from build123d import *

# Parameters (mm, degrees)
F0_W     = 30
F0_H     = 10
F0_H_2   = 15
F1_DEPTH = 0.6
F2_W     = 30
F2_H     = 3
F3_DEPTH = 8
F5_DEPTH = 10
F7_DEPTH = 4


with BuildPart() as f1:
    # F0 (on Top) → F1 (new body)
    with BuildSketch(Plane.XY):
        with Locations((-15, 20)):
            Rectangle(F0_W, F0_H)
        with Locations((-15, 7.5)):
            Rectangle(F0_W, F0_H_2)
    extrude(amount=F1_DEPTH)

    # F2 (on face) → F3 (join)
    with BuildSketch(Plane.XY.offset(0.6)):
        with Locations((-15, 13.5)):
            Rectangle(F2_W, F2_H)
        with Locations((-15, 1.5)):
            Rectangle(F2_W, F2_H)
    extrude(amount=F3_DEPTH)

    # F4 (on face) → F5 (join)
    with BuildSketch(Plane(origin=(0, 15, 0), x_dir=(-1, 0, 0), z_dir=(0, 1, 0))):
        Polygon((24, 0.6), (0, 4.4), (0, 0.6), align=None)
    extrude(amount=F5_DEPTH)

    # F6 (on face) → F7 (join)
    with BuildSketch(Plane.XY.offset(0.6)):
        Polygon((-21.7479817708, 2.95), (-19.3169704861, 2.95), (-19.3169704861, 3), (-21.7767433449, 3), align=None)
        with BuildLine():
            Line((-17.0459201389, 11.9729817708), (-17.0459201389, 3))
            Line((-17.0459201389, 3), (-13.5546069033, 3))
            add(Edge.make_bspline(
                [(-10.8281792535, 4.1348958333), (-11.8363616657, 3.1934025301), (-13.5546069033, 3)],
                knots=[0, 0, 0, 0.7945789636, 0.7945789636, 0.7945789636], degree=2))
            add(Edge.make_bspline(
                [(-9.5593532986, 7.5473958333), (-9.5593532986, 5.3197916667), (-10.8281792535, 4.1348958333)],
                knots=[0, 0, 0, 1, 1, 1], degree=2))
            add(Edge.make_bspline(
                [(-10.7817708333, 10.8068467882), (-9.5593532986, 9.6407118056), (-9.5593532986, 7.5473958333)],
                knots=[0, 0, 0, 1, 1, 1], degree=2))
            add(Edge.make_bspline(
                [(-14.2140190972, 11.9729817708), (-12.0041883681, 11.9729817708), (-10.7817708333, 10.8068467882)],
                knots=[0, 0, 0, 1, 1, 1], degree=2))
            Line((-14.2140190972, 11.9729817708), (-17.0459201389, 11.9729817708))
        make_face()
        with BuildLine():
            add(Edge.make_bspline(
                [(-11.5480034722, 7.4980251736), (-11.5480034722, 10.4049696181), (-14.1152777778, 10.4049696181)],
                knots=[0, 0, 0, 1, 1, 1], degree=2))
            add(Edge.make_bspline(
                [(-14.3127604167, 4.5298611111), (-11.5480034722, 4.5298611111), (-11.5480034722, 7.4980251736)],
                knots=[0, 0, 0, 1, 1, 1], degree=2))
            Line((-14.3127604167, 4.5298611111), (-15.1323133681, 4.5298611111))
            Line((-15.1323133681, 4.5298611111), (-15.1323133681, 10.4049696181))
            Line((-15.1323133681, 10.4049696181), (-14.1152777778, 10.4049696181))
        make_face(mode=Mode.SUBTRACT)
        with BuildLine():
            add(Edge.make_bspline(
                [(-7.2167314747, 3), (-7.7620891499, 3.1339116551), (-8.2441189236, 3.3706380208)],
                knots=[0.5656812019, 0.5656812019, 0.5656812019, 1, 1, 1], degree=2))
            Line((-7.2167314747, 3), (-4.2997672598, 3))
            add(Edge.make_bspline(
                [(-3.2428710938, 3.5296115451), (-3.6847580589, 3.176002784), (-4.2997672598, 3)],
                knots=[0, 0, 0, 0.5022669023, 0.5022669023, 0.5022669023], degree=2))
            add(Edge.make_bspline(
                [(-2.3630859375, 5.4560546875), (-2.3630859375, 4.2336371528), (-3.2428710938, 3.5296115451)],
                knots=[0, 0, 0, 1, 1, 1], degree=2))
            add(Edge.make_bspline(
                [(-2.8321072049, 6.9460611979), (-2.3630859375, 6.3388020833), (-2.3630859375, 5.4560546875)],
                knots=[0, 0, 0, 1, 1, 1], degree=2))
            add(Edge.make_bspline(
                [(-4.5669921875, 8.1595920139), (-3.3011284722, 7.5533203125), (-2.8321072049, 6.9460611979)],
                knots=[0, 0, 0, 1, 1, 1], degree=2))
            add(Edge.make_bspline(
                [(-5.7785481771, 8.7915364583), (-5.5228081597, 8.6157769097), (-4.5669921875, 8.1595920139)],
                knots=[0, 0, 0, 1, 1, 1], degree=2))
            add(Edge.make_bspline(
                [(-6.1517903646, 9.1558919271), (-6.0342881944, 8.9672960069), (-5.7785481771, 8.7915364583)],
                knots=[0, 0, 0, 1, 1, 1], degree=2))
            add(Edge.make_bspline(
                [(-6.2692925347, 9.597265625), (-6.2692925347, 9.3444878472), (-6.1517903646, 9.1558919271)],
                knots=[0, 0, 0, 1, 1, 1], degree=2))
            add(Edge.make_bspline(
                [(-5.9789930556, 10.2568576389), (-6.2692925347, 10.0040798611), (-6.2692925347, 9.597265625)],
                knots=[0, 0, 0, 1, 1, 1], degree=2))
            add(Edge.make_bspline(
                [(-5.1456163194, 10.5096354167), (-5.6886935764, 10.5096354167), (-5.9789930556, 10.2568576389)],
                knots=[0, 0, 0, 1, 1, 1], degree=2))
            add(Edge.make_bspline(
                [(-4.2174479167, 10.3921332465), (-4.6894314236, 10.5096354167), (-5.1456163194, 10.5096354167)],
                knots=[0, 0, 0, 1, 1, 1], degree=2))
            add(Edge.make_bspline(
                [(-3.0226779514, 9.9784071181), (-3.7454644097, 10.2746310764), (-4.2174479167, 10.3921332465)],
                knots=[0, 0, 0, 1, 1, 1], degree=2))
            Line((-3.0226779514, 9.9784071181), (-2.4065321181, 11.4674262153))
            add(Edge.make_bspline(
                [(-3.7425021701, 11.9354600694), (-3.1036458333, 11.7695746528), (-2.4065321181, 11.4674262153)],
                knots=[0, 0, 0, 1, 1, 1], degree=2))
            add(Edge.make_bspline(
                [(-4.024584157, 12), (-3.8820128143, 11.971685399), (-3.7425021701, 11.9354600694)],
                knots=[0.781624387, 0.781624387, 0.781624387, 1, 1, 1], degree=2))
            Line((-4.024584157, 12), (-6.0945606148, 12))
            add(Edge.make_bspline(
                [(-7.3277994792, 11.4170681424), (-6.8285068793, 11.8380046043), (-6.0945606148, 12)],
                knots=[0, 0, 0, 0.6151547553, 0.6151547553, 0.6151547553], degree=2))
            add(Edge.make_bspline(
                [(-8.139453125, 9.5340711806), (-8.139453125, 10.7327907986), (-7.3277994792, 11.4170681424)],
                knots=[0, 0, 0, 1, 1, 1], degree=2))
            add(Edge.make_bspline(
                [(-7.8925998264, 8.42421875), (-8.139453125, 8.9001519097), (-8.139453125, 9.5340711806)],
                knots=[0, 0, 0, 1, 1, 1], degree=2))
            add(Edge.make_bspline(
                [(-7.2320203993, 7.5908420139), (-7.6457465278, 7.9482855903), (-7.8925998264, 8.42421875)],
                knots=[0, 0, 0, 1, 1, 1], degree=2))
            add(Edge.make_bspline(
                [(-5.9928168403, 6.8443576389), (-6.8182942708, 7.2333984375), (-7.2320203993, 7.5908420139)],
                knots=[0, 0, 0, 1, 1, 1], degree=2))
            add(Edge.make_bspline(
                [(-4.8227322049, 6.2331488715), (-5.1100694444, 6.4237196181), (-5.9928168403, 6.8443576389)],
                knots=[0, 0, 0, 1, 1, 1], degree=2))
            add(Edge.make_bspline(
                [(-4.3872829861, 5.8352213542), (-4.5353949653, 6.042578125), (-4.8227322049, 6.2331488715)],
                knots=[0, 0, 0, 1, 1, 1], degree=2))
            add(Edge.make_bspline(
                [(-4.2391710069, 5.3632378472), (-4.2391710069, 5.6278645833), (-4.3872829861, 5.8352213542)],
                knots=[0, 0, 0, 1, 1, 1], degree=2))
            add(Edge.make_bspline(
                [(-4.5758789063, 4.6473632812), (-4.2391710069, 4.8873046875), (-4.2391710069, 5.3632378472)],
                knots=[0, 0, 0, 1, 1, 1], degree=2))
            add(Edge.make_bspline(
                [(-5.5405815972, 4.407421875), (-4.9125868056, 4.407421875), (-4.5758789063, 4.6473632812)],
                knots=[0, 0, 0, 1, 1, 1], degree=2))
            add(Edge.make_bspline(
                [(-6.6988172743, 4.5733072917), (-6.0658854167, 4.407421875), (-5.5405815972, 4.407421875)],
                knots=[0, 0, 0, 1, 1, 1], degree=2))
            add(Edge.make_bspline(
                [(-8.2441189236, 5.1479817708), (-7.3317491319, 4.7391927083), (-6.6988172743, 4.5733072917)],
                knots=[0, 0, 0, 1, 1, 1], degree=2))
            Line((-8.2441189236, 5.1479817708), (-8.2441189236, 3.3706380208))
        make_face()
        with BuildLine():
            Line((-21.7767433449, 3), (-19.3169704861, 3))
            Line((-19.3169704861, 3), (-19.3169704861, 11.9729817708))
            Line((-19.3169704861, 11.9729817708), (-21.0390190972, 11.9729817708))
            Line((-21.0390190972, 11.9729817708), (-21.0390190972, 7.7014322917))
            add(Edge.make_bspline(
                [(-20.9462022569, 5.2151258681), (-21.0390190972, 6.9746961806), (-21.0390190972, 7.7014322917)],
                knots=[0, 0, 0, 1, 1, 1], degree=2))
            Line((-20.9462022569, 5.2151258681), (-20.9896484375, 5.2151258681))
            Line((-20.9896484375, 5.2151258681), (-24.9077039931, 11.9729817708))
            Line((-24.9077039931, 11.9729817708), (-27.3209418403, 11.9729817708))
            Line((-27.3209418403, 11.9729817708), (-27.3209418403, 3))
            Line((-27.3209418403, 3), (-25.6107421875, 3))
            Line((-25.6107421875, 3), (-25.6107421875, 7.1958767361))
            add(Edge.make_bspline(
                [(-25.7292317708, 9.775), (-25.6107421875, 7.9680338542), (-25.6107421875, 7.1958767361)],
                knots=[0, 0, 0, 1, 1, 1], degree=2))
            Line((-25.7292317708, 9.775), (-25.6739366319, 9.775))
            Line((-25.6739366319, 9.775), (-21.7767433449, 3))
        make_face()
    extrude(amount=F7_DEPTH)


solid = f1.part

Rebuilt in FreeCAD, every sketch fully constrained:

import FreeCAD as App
import Part
import Sketcher
from FreeCAD import Vector


def add_polygon(sketch, points):
    """Adds a closed chain of lines whose ends are joined by coincident constraints."""
    first, n = sketch.GeometryCount, len(points)
    for a, b in zip(points, points[1:] + points[:1]):
        sketch.addGeometry(Part.LineSegment(App.Vector(*a, 0), App.Vector(*b, 0)), False)
    for i in range(n):
        sketch.addConstraint(Sketcher.Constraint("Coincident", first + i, 2, first + (i + 1) % n, 1))

doc = App.newDocument("Part")
body = doc.addObject("PartDesign::Body", "Body")

sketch1 = body.newObject("Sketcher::SketchObject", "Sketch")
sketch1.AttachmentSupport = (doc.getObject("XY_Plane"), [""])
sketch1.MapMode = "FlatFace"
add_polygon(sketch1, [(-30, 25), (-30, 0), (0, 0), (0, 25)])
sketch1.addConstraint([
    Sketcher.Constraint("Vertical", 0),
    Sketcher.Constraint("Horizontal", 1),
    Sketcher.Constraint("Vertical", 2),
    Sketcher.Constraint("Horizontal", 3),
    Sketcher.Constraint("Coincident", 1, 2, -1, 1),
    Sketcher.Constraint("DistanceX", 1, 1, 1, 2, 30.0),
    Sketcher.Constraint("DistanceY", 0, 2, 0, 1, 25.0),
])
pad1 = body.newObject("PartDesign::Pad", "Pad")
pad1.Profile = sketch1
pad1.Length = 0.6

sketch2 = body.newObject("Sketcher::SketchObject", "Sketch001")
sketch2.AttachmentSupport = (doc.getObject("XY_Plane"), [""])
sketch2.MapMode = "FlatFace"
sketch2.AttachmentOffset = App.Placement(Vector(0, 0, 0.6), App.Rotation())
add_polygon(sketch2, [(-30, 15), (-30, 12), (0, 12), (0, 15)])
add_polygon(sketch2, [(-30, 3), (-30, 0), (0, 0), (0, 3)])
sketch2.addConstraint([
    Sketcher.Constraint("Vertical", 0),
    Sketcher.Constraint("Horizontal", 1),
    Sketcher.Constraint("Vertical", 2),
    Sketcher.Constraint("Horizontal", 3),
    Sketcher.Constraint("Vertical", 4),
    Sketcher.Constraint("Horizontal", 5),
    Sketcher.Constraint("Vertical", 6),
    Sketcher.Constraint("Horizontal", 7),
    Sketcher.Constraint("Coincident", 5, 2, -1, 1),
    Sketcher.Constraint("PointOnObject", 1, 2, -2),
    Sketcher.Constraint("Vertical", 3, 2, 4, 2),
    Sketcher.Constraint("Equal", 2, 4),
    Sketcher.Constraint("DistanceX", 1, 1, 1, 2, 30.0),
    Sketcher.Constraint("DistanceY", 0, 2, 0, 1, 3.0),
    Sketcher.Constraint("DistanceY", -1, 1, 0, 2, 12.0),
])
pad2 = body.newObject("PartDesign::Pad", "Pad001")
pad2.Profile = sketch2
pad2.Length = 8

sketch3 = body.newObject("Sketcher::SketchObject", "Sketch002")
sketch3.AttachmentSupport = (doc.getObject("XZ_Plane"), [""])
sketch3.MapMode = "FlatFace"
sketch3.AttachmentOffset = App.Placement(Vector(0, 0, -15), App.Rotation())
add_polygon(sketch3, [(-24, 0.6), (0, 4.4), (0, 0.6)])
sketch3.addConstraint([
    Sketcher.Constraint("Vertical", 1),
    Sketcher.Constraint("Horizontal", 2),
    Sketcher.Constraint("PointOnObject", 0, 2, -2),
    Sketcher.Constraint("DistanceX", 2, 2, 2, 1, 24.0),
    Sketcher.Constraint("DistanceY", 1, 2, 1, 1, 3.8),
    Sketcher.Constraint("DistanceY", -1, 1, 0, 2, 4.4),
])
pad3 = body.newObject("PartDesign::Pad", "Pad002")
pad3.Profile = sketch3
pad3.Length = 10
pad3.Reversed = True

sketch4 = body.newObject("Sketcher::SketchObject", "Sketch003")
sketch4.AttachmentSupport = (doc.getObject("XY_Plane"), [""])
sketch4.MapMode = "FlatFace"
sketch4.AttachmentOffset = App.Placement(Vector(0, 0, 0.6), App.Rotation())
sketch4.addGeometry([
    Part.LineSegment(Vector(-21.747982, 2.95, 0), Vector(-19.31697, 2.95, 0)),
    Part.LineSegment(Vector(-19.31697, 2.95, 0), Vector(-19.31697, 11.972982, 0)),
    Part.LineSegment(Vector(-19.31697, 11.972982, 0), Vector(-21.039019, 11.972982, 0)),
    Part.LineSegment(Vector(-21.039019, 11.972982, 0), Vector(-21.039019, 7.701432, 0)),
    Part.BSplineCurve([Vector(-20.946202, 5.215126, 0), Vector(-21.039019, 6.974696, 0), Vector(-21.039019, 7.701432, 0)], [3, 3], [0, 1], False, 2, [1, 1, 1], False),
    Part.LineSegment(Vector(-20.946202, 5.215126, 0), Vector(-20.989648, 5.215126, 0)),
    Part.LineSegment(Vector(-20.989648, 5.215126, 0), Vector(-24.907704, 11.972982, 0)),
    Part.LineSegment(Vector(-24.907704, 11.972982, 0), Vector(-27.320942, 11.972982, 0)),
    Part.LineSegment(Vector(-27.320942, 11.972982, 0), Vector(-27.320942, 3, 0)),
    Part.LineSegment(Vector(-27.320942, 3, 0), Vector(-25.610742, 3, 0)),
    Part.LineSegment(Vector(-25.610742, 3, 0), Vector(-25.610742, 7.195877, 0)),
    Part.BSplineCurve([Vector(-25.729232, 9.775, 0), Vector(-25.610742, 7.968034, 0), Vector(-25.610742, 7.195877, 0)], [3, 3], [0, 1], False, 2, [1, 1, 1], False),
    Part.LineSegment(Vector(-25.729232, 9.775, 0), Vector(-25.673937, 9.775, 0)),
    Part.LineSegment(Vector(-25.673937, 9.775, 0), Vector(-21.776743, 3, 0)),
    Part.LineSegment(Vector(-21.776743, 3, 0), Vector(-21.747982, 2.95, 0)),
    Part.LineSegment(Vector(-17.04592, 11.972982, 0), Vector(-17.04592, 3, 0)),
    Part.LineSegment(Vector(-17.04592, 3, 0), Vector(-13.554607, 3, 0)),
    Part.BSplineCurve([Vector(-10.828179, 4.134896, 0), Vector(-11.836362, 3.193403, 0), Vector(-13.554607, 3, 0)], [3, 3], [0, 0.794578964], False, 2, [1, 1, 1], False),
    Part.BSplineCurve([Vector(-10.781771, 10.806847, 0), Vector(-9.559353, 9.640712, 0), Vector(-9.559353, 5.319792, 0), Vector(-10.828179, 4.134896, 0)], [3, 1, 3], [0, 1, 2.064150943], False, 2, [1, 1, 1, 1], False),
    Part.BSplineCurve([Vector(-14.214019, 11.972982, 0), Vector(-12.004188, 11.972982, 0), Vector(-10.781771, 10.806847, 0)], [3, 3], [0, 1], False, 2, [1, 1, 1], False),
    Part.LineSegment(Vector(-14.214019, 11.972982, 0), Vector(-17.04592, 11.972982, 0)),
    Part.BSplineCurve([Vector(-14.31276, 4.529861, 0), Vector(-11.548003, 4.529861, 0), Vector(-11.548003, 10.40497, 0), Vector(-14.115278, 10.40497, 0)], [3, 1, 3], [0, 1, 1.979374584], False, 2, [1, 1, 1, 1], False),
    Part.LineSegment(Vector(-14.31276, 4.529861, 0), Vector(-15.132313, 4.529861, 0)),
    Part.LineSegment(Vector(-15.132313, 4.529861, 0), Vector(-15.132313, 10.40497, 0)),
    Part.LineSegment(Vector(-15.132313, 10.40497, 0), Vector(-14.115278, 10.40497, 0)),
    Part.BSplineCurve([Vector(-7.216731, 3, 0), Vector(-7.762089, 3.133912, 0), Vector(-8.244119, 3.370638, 0)], [3, 3], [0.565681202, 1], False, 2, [1, 1, 1], False),
    Part.LineSegment(Vector(-7.216731, 3, 0), Vector(-4.299767, 3, 0)),
    Part.BSplineCurve([Vector(-3.242871, 3.529612, 0), Vector(-3.684758, 3.176003, 0), Vector(-4.299767, 3, 0)], [3, 3], [0, 0.502266902], False, 2, [1, 1, 1], False),
    Part.BSplineCurve([Vector(-2.832107, 6.946061, 0), Vector(-2.363086, 6.338802, 0), Vector(-2.363086, 4.233637, 0), Vector(-3.242871, 3.529612, 0)], [3, 1, 3], [0, 1, 2.384787472], False, 2, [1, 1, 1, 1], False),
    Part.BSplineCurve([Vector(-4.566992, 8.159592, 0), Vector(-3.301128, 7.55332, 0), Vector(-2.832107, 6.946061, 0)], [3, 3], [0, 1], False, 2, [1, 1, 1], False),
    Part.BSplineCurve([Vector(-5.778548, 8.791536, 0), Vector(-5.522808, 8.615777, 0), Vector(-4.566992, 8.159592, 0)], [3, 3], [0, 1], False, 2, [1, 1, 1], False),
    Part.BSplineCurve([Vector(-6.15179, 9.155892, 0), Vector(-6.034288, 8.967296, 0), Vector(-5.778548, 8.791536, 0)], [3, 3], [0, 1], False, 2, [1, 1, 1], False),
    Part.BSplineCurve([Vector(-5.978993, 10.256858, 0), Vector(-6.269293, 10.00408, 0), Vector(-6.269293, 9.344488, 0), Vector(-6.15179, 9.155892, 0)], [3, 1, 3], [0, 1, 1.621359223], False, 2, [1, 1, 1, 1], False),
    Part.BSplineCurve([Vector(-4.217448, 10.392133, 0), Vector(-4.689431, 10.509635, 0), Vector(-5.688694, 10.509635, 0), Vector(-5.978993, 10.256858, 0)], [3, 1, 3], [0, 1, 2.190476191], False, 2, [1, 1, 1, 1], False),
    Part.BSplineCurve([Vector(-3.022678, 9.978407, 0), Vector(-3.745464, 10.274631, 0), Vector(-4.217448, 10.392133, 0)], [3, 3], [0, 1], False, 2, [1, 1, 1], False),
    Part.LineSegment(Vector(-3.022678, 9.978407, 0), Vector(-2.406532, 11.467426, 0)),
    Part.BSplineCurve([Vector(-3.742502, 11.93546, 0), Vector(-3.103646, 11.769575, 0), Vector(-2.406532, 11.467426, 0)], [3, 3], [0, 1], False, 2, [1, 1, 1], False),
    Part.BSplineCurve([Vector(-4.024584, 12, 0), Vector(-3.882013, 11.971685, 0), Vector(-3.742502, 11.93546, 0)], [3, 3], [0.781624387, 1], False, 2, [1, 1, 1], False),
    Part.LineSegment(Vector(-4.024584, 12, 0), Vector(-6.094561, 12, 0)),
    Part.BSplineCurve([Vector(-7.327799, 11.417068, 0), Vector(-6.828507, 11.838005, 0), Vector(-6.094561, 12, 0)], [3, 3], [0, 0.615154755], False, 2, [1, 1, 1], False),
    Part.BSplineCurve([Vector(-5.992817, 6.844358, 0), Vector(-6.818294, 7.233398, 0), Vector(-7.645747, 7.948286, 0), Vector(-8.139453, 8.900152, 0), Vector(-8.139453, 10.732791, 0), Vector(-7.327799, 11.417068, 0)], [3, 1, 1, 1, 3], [0, 1, 2, 3, 4.890965732], False, 2, [1, 1, 1, 1, 1, 1], False),
    Part.BSplineCurve([Vector(-4.822732, 6.233149, 0), Vector(-5.110069, 6.42372, 0), Vector(-5.992817, 6.844358, 0)], [3, 3], [0, 1], False, 2, [1, 1, 1], False),
    Part.BSplineCurve([Vector(-4.387283, 5.835221, 0), Vector(-4.535395, 6.042578, 0), Vector(-4.822732, 6.233149, 0)], [3, 3], [0, 1], False, 2, [1, 1, 1], False),
    Part.BSplineCurve([Vector(-4.575879, 4.647363, 0), Vector(-4.239171, 4.887305, 0), Vector(-4.239171, 5.627865, 0), Vector(-4.387283, 5.835221, 0)], [3, 1, 3], [0, 1, 1.556016598], False, 2, [1, 1, 1, 1], False),
    Part.BSplineCurve([Vector(-6.698817, 4.573307, 0), Vector(-6.065885, 4.407422, 0), Vector(-4.912587, 4.407422, 0), Vector(-4.575879, 4.647363, 0)], [3, 1, 3], [0, 1, 2.195488722], False, 2, [1, 1, 1, 1], False),
    Part.BSplineCurve([Vector(-8.244119, 5.147982, 0), Vector(-7.331749, 4.739193, 0), Vector(-6.698817, 4.573307, 0)], [3, 3], [0, 1], False, 2, [1, 1, 1], False),
    Part.LineSegment(Vector(-8.244119, 5.147982, 0), Vector(-8.244119, 3.370638, 0)),
], False)
sketch4.addConstraint([
    Sketcher.Constraint("Block", 4),
    Sketcher.Constraint("Block", 11),
    Sketcher.Constraint("Block", 17),
    Sketcher.Constraint("Block", 18),
    Sketcher.Constraint("Block", 19),
    Sketcher.Constraint("Block", 21),
    Sketcher.Constraint("Block", 25),
    Sketcher.Constraint("Block", 27),
    Sketcher.Constraint("Block", 28),
    Sketcher.Constraint("Block", 29),
    Sketcher.Constraint("Block", 30),
    Sketcher.Constraint("Block", 31),
    Sketcher.Constraint("Block", 32),
    Sketcher.Constraint("Block", 33),
    Sketcher.Constraint("Block", 34),
    Sketcher.Constraint("Block", 36),
    Sketcher.Constraint("Block", 37),
    Sketcher.Constraint("Block", 39),
    Sketcher.Constraint("Block", 40),
    Sketcher.Constraint("Block", 41),
    Sketcher.Constraint("Block", 42),
    Sketcher.Constraint("Block", 43),
    Sketcher.Constraint("Block", 44),
    Sketcher.Constraint("Block", 45),
    Sketcher.Constraint("Coincident", 0, 2, 1, 1),
    Sketcher.Constraint("Coincident", 1, 2, 2, 1),
    Sketcher.Constraint("Coincident", 2, 2, 3, 1),
    Sketcher.Constraint("Coincident", 3, 2, 4, 2),
    Sketcher.Constraint("Coincident", 4, 1, 5, 1),
    Sketcher.Constraint("Coincident", 5, 2, 6, 1),
    Sketcher.Constraint("Coincident", 6, 2, 7, 1),
    Sketcher.Constraint("Coincident", 7, 2, 8, 1),
    Sketcher.Constraint("Coincident", 8, 2, 9, 1),
    Sketcher.Constraint("Coincident", 9, 2, 10, 1),
    Sketcher.Constraint("Coincident", 10, 2, 11, 2),
    Sketcher.Constraint("Coincident", 11, 1, 12, 1),
    Sketcher.Constraint("Coincident", 12, 2, 13, 1),
    Sketcher.Constraint("Coincident", 13, 2, 14, 1),
    Sketcher.Constraint("Coincident", 14, 2, 0, 1),
    Sketcher.Constraint("Coincident", 15, 2, 16, 1),
    Sketcher.Constraint("Coincident", 16, 2, 17, 2),
    Sketcher.Constraint("Coincident", 19, 1, 20, 1),
    Sketcher.Constraint("Coincident", 20, 2, 15, 1),
    Sketcher.Constraint("Coincident", 21, 1, 22, 1),
    Sketcher.Constraint("Coincident", 22, 2, 23, 1),
    Sketcher.Constraint("Coincident", 23, 2, 24, 1),
    Sketcher.Constraint("Coincident", 24, 2, 21, 2),
    Sketcher.Constraint("Coincident", 25, 1, 26, 1),
    Sketcher.Constraint("Coincident", 26, 2, 27, 2),
    Sketcher.Constraint("Coincident", 34, 1, 35, 1),
    Sketcher.Constraint("Coincident", 35, 2, 36, 2),
    Sketcher.Constraint("Coincident", 37, 1, 38, 1),
    Sketcher.Constraint("Coincident", 38, 2, 39, 2),
    Sketcher.Constraint("Coincident", 45, 1, 46, 1),
    Sketcher.Constraint("Coincident", 46, 2, 25, 2),
    Sketcher.Constraint("Horizontal", 0),
    Sketcher.Constraint("Vertical", 1),
    Sketcher.Constraint("Horizontal", 2),
    Sketcher.Constraint("Vertical", 3),
    Sketcher.Constraint("Horizontal", 5),
    Sketcher.Constraint("Horizontal", 7),
    Sketcher.Constraint("Vertical", 8),
    Sketcher.Constraint("Horizontal", 9),
    Sketcher.Constraint("Vertical", 10),
    Sketcher.Constraint("Horizontal", 12),
    Sketcher.Constraint("Vertical", 15),
    Sketcher.Constraint("Horizontal", 16),
    Sketcher.Constraint("Horizontal", 20),
    Sketcher.Constraint("Horizontal", 22),
    Sketcher.Constraint("Vertical", 23),
    Sketcher.Constraint("Horizontal", 24),
    Sketcher.Constraint("DistanceY", -1, 1, 8, 2, 3.0),
    Sketcher.Constraint("DistanceY", -1, 1, 13, 2, 3.0),
    Sketcher.Constraint("DistanceY", -1, 1, 0, 2, 2.95),
    Sketcher.Constraint("DistanceX", 9, 1, 9, 2, 1.7102),
    Sketcher.Constraint("DistanceX", 20, 2, 20, 1, 2.831901),
    Sketcher.Constraint("DistanceX", 9, 2, 13, 2, 3.833999),
    Sketcher.Constraint("DistanceX", 0, 1, 0, 2, 2.431011),
    Sketcher.Constraint("DistanceX", 2, 2, 2, 1, 1.722049),
    Sketcher.Constraint("DistanceY", 1, 1, 1, 2, 9.022982),
    Sketcher.Constraint("DistanceY", 8, 2, 8, 1, 8.972982),
    Sketcher.Constraint("Distance", 13, 7.815929),
    Sketcher.Constraint("DistanceX", 5, 2, 5, 1, 0.043446),
    Sketcher.Constraint("DistanceX", 7, 2, 7, 1, 2.413238),
    Sketcher.Constraint("DistanceX", 22, 2, 22, 1, 0.819553),
])
pad4 = body.newObject("PartDesign::Pad", "Pad003")
pad4.Profile = sketch4
pad4.Length = 4

doc.recompute()
